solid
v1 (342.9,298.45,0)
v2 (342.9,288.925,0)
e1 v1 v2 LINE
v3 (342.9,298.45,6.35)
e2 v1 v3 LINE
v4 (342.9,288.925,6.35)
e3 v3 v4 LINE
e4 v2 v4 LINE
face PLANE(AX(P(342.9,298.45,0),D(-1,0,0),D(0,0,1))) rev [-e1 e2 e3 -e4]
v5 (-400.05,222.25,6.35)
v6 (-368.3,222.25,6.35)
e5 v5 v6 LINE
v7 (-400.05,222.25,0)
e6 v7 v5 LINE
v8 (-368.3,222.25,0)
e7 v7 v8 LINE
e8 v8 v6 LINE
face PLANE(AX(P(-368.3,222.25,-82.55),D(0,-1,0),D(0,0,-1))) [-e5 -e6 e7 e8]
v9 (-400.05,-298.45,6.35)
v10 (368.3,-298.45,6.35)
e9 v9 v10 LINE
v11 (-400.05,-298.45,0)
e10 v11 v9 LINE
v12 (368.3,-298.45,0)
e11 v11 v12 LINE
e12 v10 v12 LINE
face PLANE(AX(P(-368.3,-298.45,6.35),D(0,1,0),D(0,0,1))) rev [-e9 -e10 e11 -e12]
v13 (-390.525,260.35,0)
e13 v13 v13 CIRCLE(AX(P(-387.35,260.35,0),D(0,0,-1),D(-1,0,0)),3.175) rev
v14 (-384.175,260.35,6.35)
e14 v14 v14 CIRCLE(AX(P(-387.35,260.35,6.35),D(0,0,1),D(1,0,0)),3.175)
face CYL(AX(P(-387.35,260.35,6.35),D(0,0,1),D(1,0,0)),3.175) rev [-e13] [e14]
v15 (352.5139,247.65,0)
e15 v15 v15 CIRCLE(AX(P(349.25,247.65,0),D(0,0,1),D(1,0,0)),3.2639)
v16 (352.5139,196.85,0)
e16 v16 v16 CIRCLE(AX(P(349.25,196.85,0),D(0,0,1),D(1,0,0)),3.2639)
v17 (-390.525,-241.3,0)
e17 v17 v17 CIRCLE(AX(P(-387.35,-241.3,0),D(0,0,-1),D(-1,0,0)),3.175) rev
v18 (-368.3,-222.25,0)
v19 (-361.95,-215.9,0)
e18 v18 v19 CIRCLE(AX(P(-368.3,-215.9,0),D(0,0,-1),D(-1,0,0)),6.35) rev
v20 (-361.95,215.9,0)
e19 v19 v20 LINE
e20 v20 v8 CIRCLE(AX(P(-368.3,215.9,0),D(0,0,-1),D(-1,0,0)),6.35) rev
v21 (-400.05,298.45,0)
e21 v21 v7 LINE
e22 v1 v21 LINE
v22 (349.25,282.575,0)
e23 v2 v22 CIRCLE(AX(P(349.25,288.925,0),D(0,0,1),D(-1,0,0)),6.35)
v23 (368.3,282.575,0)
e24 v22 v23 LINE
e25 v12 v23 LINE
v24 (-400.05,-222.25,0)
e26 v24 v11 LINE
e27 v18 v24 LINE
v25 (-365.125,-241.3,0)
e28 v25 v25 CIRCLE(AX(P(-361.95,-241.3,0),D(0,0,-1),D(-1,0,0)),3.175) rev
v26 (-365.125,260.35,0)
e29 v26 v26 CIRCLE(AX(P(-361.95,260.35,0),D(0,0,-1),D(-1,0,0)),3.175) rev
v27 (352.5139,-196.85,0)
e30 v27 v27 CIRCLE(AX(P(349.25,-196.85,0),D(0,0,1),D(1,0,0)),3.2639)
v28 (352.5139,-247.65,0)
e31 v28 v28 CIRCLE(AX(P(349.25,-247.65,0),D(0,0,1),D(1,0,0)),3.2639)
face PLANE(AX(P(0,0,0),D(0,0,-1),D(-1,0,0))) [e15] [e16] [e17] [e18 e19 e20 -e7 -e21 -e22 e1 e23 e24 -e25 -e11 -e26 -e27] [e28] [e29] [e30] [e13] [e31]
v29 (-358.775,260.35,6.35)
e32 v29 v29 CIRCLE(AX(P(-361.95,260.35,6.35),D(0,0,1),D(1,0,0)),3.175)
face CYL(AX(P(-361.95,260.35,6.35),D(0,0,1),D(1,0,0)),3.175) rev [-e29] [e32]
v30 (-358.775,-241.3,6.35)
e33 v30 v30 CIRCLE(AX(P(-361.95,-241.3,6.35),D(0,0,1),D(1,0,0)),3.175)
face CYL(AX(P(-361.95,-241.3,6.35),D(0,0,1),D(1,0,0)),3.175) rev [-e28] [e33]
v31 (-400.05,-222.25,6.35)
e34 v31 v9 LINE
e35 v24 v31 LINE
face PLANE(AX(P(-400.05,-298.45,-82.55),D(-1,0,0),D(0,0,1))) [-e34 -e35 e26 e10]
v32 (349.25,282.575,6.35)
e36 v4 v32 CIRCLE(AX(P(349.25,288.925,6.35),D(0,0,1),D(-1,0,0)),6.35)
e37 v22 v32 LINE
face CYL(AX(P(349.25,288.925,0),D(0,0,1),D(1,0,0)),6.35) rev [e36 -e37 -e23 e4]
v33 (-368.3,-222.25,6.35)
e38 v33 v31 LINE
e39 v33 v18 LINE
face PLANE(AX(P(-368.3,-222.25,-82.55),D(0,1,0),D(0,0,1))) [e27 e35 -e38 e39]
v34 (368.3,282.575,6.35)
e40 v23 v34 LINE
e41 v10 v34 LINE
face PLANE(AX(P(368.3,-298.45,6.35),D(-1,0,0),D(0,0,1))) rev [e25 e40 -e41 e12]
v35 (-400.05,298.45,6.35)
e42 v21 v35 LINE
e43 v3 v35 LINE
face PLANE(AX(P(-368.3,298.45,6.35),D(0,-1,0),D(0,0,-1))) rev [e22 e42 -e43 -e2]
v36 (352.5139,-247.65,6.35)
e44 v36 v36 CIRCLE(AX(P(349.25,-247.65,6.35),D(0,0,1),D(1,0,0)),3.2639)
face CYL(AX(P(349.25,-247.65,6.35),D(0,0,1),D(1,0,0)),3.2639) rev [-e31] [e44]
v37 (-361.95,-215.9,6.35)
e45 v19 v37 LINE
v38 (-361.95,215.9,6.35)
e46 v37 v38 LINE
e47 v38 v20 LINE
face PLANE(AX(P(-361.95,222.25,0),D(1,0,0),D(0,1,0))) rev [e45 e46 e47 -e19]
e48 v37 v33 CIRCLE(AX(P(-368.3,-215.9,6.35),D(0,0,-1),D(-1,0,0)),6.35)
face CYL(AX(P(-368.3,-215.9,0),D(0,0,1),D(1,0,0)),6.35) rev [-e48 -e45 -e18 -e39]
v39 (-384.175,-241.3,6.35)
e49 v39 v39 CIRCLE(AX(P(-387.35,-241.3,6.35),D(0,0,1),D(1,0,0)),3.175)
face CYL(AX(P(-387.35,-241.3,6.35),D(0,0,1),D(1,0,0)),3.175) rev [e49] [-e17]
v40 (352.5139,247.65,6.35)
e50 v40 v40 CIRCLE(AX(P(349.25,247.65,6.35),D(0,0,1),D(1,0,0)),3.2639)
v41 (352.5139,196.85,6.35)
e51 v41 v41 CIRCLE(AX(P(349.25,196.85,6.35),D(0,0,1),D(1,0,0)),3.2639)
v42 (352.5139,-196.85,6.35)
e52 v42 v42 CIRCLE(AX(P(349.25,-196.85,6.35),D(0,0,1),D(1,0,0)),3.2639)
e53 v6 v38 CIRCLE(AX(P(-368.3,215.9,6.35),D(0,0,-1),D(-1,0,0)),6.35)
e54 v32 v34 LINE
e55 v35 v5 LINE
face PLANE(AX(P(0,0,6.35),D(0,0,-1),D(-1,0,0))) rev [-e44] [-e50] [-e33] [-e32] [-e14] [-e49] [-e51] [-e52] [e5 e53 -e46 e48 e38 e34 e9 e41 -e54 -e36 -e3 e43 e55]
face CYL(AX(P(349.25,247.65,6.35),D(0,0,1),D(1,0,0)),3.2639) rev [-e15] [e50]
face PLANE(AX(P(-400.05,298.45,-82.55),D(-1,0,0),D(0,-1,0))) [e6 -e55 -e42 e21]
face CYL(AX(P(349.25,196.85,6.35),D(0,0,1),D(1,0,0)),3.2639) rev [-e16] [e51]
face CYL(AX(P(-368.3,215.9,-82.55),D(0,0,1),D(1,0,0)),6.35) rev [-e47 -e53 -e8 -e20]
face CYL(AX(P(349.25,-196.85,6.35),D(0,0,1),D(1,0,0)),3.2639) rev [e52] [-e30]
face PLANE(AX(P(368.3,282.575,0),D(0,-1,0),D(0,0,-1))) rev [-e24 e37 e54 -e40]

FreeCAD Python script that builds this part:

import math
import FreeCAD as App
import Part
import Sketcher
Q = App.Units.Quantity


def edges_at(feature, points):
    """Names of the edges that pass closest to the given points."""
    edges = feature.Shape.Edges
    near = lambda p: min(range(len(edges)), key=lambda i: edges[i].distToShape(Part.Vertex(*p))[0])
    return sorted({f"Edge{near(p) + 1}" for p in points})

doc = App.newDocument("Part")
body = doc.addObject("PartDesign::Body", "Body")

# Sketch on XY plane
sketch1 = body.newObject("Sketcher::SketchObject", "Sketch")
sketch1.AttachmentSupport = (doc.getObject("XY_Plane"), [""])
sketch1.MapMode = "FlatFace"
sketch1.addGeometry(Part.LineSegment(App.Vector(-368, 298, 0), App.Vector(-368, -298, 0)), False)
sketch1.addGeometry(Part.LineSegment(App.Vector(-368, -298, 0), App.Vector(368, -298, 0)), False)
sketch1.addGeometry(Part.LineSegment(App.Vector(368, -298, 0), App.Vector(368, 298, 0)), False)
sketch1.addGeometry(Part.LineSegment(App.Vector(368, 298, 0), App.Vector(-368, 298, 0)), False)
sketch1.addConstraint(Sketcher.Constraint("Coincident", 0, 2, 1, 1))
sketch1.addConstraint(Sketcher.Constraint("Coincident", 1, 2, 2, 1))
sketch1.addConstraint(Sketcher.Constraint("Coincident", 2, 2, 3, 1))
sketch1.addConstraint(Sketcher.Constraint("Coincident", 3, 2, 0, 1))
sketch1.addConstraint(Sketcher.Constraint("Vertical", 0))
sketch1.addConstraint(Sketcher.Constraint("Horizontal", 1))
sketch1.addConstraint(Sketcher.Constraint("Vertical", 2))
sketch1.addConstraint(Sketcher.Constraint("Horizontal", 3))
sketch1.addConstraint(Sketcher.Constraint("Symmetric", 0, 2, 2, 2, -1, 1))
sketch1.addConstraint(Sketcher.Constraint("DistanceX", 1, 1, 1, 2, Q("29 in")))
sketch1.addConstraint(Sketcher.Constraint("DistanceY", 0, 2, 0, 1, Q("23.5 in")))
pad1 = body.newObject("PartDesign::Pad", "Pad")
pad1.Profile = sketch1
pad1.Length = Q("0.25 in")

# Sketch on XY plane
sketch2 = body.newObject("Sketcher::SketchObject", "Sketch001")
sketch2.AttachmentSupport = (doc.getObject("XY_Plane"), [""])
sketch2.MapMode = "FlatFace"
sketch2.AttachmentOffset = App.Placement(App.Vector(0, 0, 0.25 * 25.4), App.Rotation())
sketch2.addGeometry(Part.LineSegment(App.Vector(-400, 298, 0), App.Vector(-400, 222, 0)), False)
sketch2.addGeometry(Part.LineSegment(App.Vector(-400, 222, 0), App.Vector(-368, 222, 0)), False)
sketch2.addGeometry(Part.LineSegment(App.Vector(-368, 222, 0), App.Vector(-368, 298, 0)), False)
sketch2.addGeometry(Part.LineSegment(App.Vector(-368, 298, 0), App.Vector(-400, 298, 0)), False)
sketch2.addGeometry(Part.LineSegment(App.Vector(-400, -222, 0), App.Vector(-400, -298, 0)), False)
sketch2.addGeometry(Part.LineSegment(App.Vector(-400, -298, 0), App.Vector(-368, -298, 0)), False)
sketch2.addGeometry(Part.LineSegment(App.Vector(-368, -298, 0), App.Vector(-368, -222, 0)), False)
sketch2.addGeometry(Part.LineSegment(App.Vector(-368, -222, 0), App.Vector(-400, -222, 0)), False)
sketch2.addConstraint(Sketcher.Constraint("Coincident", 0, 2, 1, 1))
sketch2.addConstraint(Sketcher.Constraint("Coincident", 1, 2, 2, 1))
sketch2.addConstraint(Sketcher.Constraint("Coincident", 2, 2, 3, 1))
sketch2.addConstraint(Sketcher.Constraint("Coincident", 3, 2, 0, 1))
sketch2.addConstraint(Sketcher.Constraint("Coincident", 4, 2, 5, 1))
sketch2.addConstraint(Sketcher.Constraint("Coincident", 5, 2, 6, 1))
sketch2.addConstraint(Sketcher.Constraint("Coincident", 6, 2, 7, 1))
sketch2.addConstraint(Sketcher.Constraint("Coincident", 7, 2, 4, 1))
sketch2.addConstraint(Sketcher.Constraint("Vertical", 0))
sketch2.addConstraint(Sketcher.Constraint("Horizontal", 1))
sketch2.addConstraint(Sketcher.Constraint("Vertical", 2))
sketch2.addConstraint(Sketcher.Constraint("Horizontal", 3))
sketch2.addConstraint(Sketcher.Constraint("Vertical", 4))
sketch2.addConstraint(Sketcher.Constraint("Horizontal", 5))
sketch2.addConstraint(Sketcher.Constraint("Vertical", 6))
sketch2.addConstraint(Sketcher.Constraint("Horizontal", 7))
sketch2.addConstraint(Sketcher.Constraint("Symmetric", 3, 2, 4, 2, -1))
sketch2.addConstraint(Sketcher.Constraint("Symmetric", 1, 2, 6, 2, -1))
sketch2.addConstraint(Sketcher.Constraint("DistanceY", 0, 2, 0, 1, Q("3 in")))
sketch2.addConstraint(Sketcher.Constraint("DistanceX", 1, 1, 1, 2, Q("1.25 in")))
sketch2.addConstraint(Sketcher.Constraint("DistanceX", 1, 2, -1, 1, Q("14.5 in")))
sketch2.addConstraint(Sketcher.Constraint("DistanceY", 4, 2, 0, 2, Q("20.5 in")))
pad2 = body.newObject("PartDesign::Pad", "Pad001")
pad2.Profile = sketch2
pad2.Length = Q("0.25 in")
pad2.Reversed = True

# Sketch on XY plane
sketch3 = body.newObject("Sketcher::SketchObject", "Sketch002")
sketch3.AttachmentSupport = (doc.getObject("XY_Plane"), [""])
sketch3.MapMode = "FlatFace"
sketch3.AttachmentOffset = App.Placement(App.Vector(0, 0, 0.25 * 25.4), App.Rotation())
sketch3.addGeometry(Part.LineSegment(App.Vector(-368, 222, 0), App.Vector(-368, -222, 0)), False)
sketch3.addGeometry(Part.LineSegment(App.Vector(-368, -222, 0), App.Vector(-362, -222, 0)), False)
sketch3.addGeometry(Part.LineSegment(App.Vector(-362, -222, 0), App.Vector(-362, 222, 0)), False)
sketch3.addGeometry(Part.LineSegment(App.Vector(-362, 222, 0), App.Vector(-368, 222, 0)), False)
sketch3.addConstraint(Sketcher.Constraint("Coincident", 0, 2, 1, 1))
sketch3.addConstraint(Sketcher.Constraint("Coincident", 1, 2, 2, 1))
sketch3.addConstraint(Sketcher.Constraint("Coincident", 2, 2, 3, 1))
sketch3.addConstraint(Sketcher.Constraint("Coincident", 3, 2, 0, 1))
sketch3.addConstraint(Sketcher.Constraint("Vertical", 0))
sketch3.addConstraint(Sketcher.Constraint("Horizontal", 1))
sketch3.addConstraint(Sketcher.Constraint("Vertical", 2))
sketch3.addConstraint(Sketcher.Constraint("Horizontal", 3))
sketch3.addConstraint(Sketcher.Constraint("DistanceY", 0, 2, 0, 1, Q("17.5 in")))
sketch3.addConstraint(Sketcher.Constraint("DistanceX", 1, 1, 1, 2, Q("0.25 in")))
sketch3.addConstraint(Sketcher.Constraint("DistanceX", 0, 2, -1, 1, Q("14.5 in")))
sketch3.addConstraint(Sketcher.Constraint("DistanceY", 0, 2, -1, 1, Q("8.75 in")))
pocket1 = body.newObject("PartDesign::Pocket", "Pocket")
pocket1.Profile = sketch3
pocket1.Type = "ThroughAll"
doc.recompute()

fillet = body.newObject("PartDesign::Fillet", "Fillet")
fillet.Base = (pocket1, edges_at(pocket1, [(-361.95, -222.25, 3.175), (-361.95, 222.25, 3.175)]))
fillet.Radius = Q("0.25 in")

# Sketch on XY plane
sketch4 = body.newObject("Sketcher::SketchObject", "Sketch003")
sketch4.AttachmentSupport = (doc.getObject("XY_Plane"), [""])
sketch4.MapMode = "FlatFace"
sketch4.AttachmentOffset = App.Placement(App.Vector(0, 0, 0.25 * 25.4), App.Rotation())
sketch4.addGeometry(Part.Circle(App.Vector(349.2, 247.7, 0), App.Vector(0, 0, 1), 3.3), False)
sketch4.addGeometry(Part.Circle(App.Vector(349.2, 196.8, 0), App.Vector(0, 0, 1), 3.3), False)
sketch4.addGeometry(Part.Circle(App.Vector(349.2, -196.8, 0), App.Vector(0, 0, 1), 3.3), False)
sketch4.addGeometry(Part.Circle(App.Vector(349.2, -247.7, 0), App.Vector(0, 0, 1), 3.3), False)
sketch4.addConstraint(Sketcher.Constraint("Equal", 0, 1))
sketch4.addConstraint(Sketcher.Constraint("Equal", 1, 2))
sketch4.addConstraint(Sketcher.Constraint("Equal", 2, 3))
sketch4.addConstraint(Sketcher.Constraint("Symmetric", 1, 3, 2, 3, -1))
sketch4.addConstraint(Sketcher.Constraint("Symmetric", 0, 3, 3, 3, -1))
sketch4.addConstraint(Sketcher.Constraint("Vertical", 0, 3, 1, 3))
sketch4.addConstraint(Sketcher.Constraint("Diameter", 0, Q("0.257 in")))
sketch4.addConstraint(Sketcher.Constraint("DistanceY", 1, 3, 0, 3, Q("2 in")))
sketch4.addConstraint(Sketcher.Constraint("DistanceY", 2, 3, 1, 3, Q("15.5 in")))
sketch4.addConstraint(Sketcher.Constraint("DistanceX", -1, 1, 0, 3, Q("13.75 in")))
doc.recompute()
hole = body.newObject("PartDesign::Hole", "Hole")
hole.Profile = sketch4
hole.ThreadType = "None"
hole.Diameter = Q("0.257 in")
hole.DepthType = "ThroughAll"

# Sketch on XY plane
sketch5 = body.newObject("Sketcher::SketchObject", "Sketch004")
sketch5.AttachmentSupport = (doc.getObject("XY_Plane"), [""])
sketch5.MapMode = "FlatFace"
sketch5.AttachmentOffset = App.Placement(App.Vector(0, 0, 0.25 * 25.4), App.Rotation())
sketch5.addGeometry(Part.Circle(App.Vector(-387.4, 260.4, 0), App.Vector(0, 0, 1), 3.2), False)
sketch5.addGeometry(Part.Circle(App.Vector(-361.9, 260.4, 0), App.Vector(0, 0, 1), 3.2), False)
sketch5.addGeometry(Part.Circle(App.Vector(-361.9, -241.3, 0), App.Vector(0, 0, 1), 3.2), False)
sketch5.addGeometry(Part.Circle(App.Vector(-387.4, -241.3, 0), App.Vector(0, 0, 1), 3.2), False)
sketch5.addConstraint(Sketcher.Constraint("Equal", 0, 1))
sketch5.addConstraint(Sketcher.Constraint("Equal", 1, 2))
sketch5.addConstraint(Sketcher.Constraint("Equal", 2, 3))
sketch5.addConstraint(Sketcher.Constraint("Horizontal", 0, 3, 1, 3))
sketch5.addConstraint(Sketcher.Constraint("Horizontal", 2, 3, 3, 3))
sketch5.addConstraint(Sketcher.Constraint("Vertical", 1, 3, 2, 3))
sketch5.addConstraint(Sketcher.Constraint("Vertical", 0, 3, 3, 3))
sketch5.addConstraint(Sketcher.Constraint("Diameter", 0, Q("0.25 in")))
sketch5.addConstraint(Sketcher.Constraint("DistanceX", 0, 3, 1, 3, Q("1 in")))
sketch5.addConstraint(Sketcher.Constraint("DistanceY", 2, 3, -1, 1, Q("9.5 in")))
sketch5.addConstraint(Sketcher.Constraint("DistanceX", 0, 3, -1, 1, Q("15.25 in")))
sketch5.addConstraint(Sketcher.Constraint("DistanceY", -1, 1, 0, 3, Q("10.25 in")))
doc.recompute()
hole2 = body.newObject("PartDesign::Hole", "Hole001")
hole2.Profile = sketch5
hole2.ThreadType = "None"
hole2.Diameter = Q("0.25 in")
hole2.DepthType = "ThroughAll"

# Sketch on XY plane
sketch6 = body.newObject("Sketcher::SketchObject", "Sketch005")
sketch6.AttachmentSupport = (doc.getObject("XY_Plane"), [""])
sketch6.MapMode = "FlatFace"
sketch6.AttachmentOffset = App.Placement(App.Vector(0, 0, 0.25 * 25.4), App.Rotation())
sketch6.addGeometry(Part.LineSegment(App.Vector(368, 298, 0), App.Vector(343, 298, 0)), False)
sketch6.addGeometry(Part.LineSegment(App.Vector(343, 298, 0), App.Vector(343, 289, 0)), False)
sketch6.addGeometry(Part.ArcOfCircle(Part.Circle(App.Vector(349, 289, 0), App.Vector(0, 0, 1), 6), math.radians(180), math.radians(270)), False)
sketch6.addGeometry(Part.LineSegment(App.Vector(349, 283, 0), App.Vector(368, 283, 0)), False)
sketch6.addGeometry(Part.LineSegment(App.Vector(368, 283, 0), App.Vector(368, 298, 0)), False)
sketch6.addConstraint(Sketcher.Constraint("Coincident", 0, 2, 1, 1))
sketch6.addConstraint(Sketcher.Constraint("Tangent", 1, 2, 2, 1))
sketch6.addConstraint(Sketcher.Constraint("Tangent", 2, 2, 3, 1))
sketch6.addConstraint(Sketcher.Constraint("Coincident", 3, 2, 4, 1))
sketch6.addConstraint(Sketcher.Constraint("Coincident", 4, 2, 0, 1))
sketch6.addConstraint(Sketcher.Constraint("Horizontal", 0))
sketch6.addConstraint(Sketcher.Constraint("Vertical", 1))
sketch6.addConstraint(Sketcher.Constraint("Horizontal", 3))
sketch6.addConstraint(Sketcher.Constraint("Vertical", 4))
sketch6.addConstraint(Sketcher.Constraint("DistanceX", 0, 2, 0, 1, Q("1 in")))
sketch6.addConstraint(Sketcher.Constraint("Radius", 2, Q("0.25 in")))
sketch6.addConstraint(Sketcher.Constraint("DistanceX", -1, 1, 0, 2, Q("13.5 in")))
sketch6.addConstraint(Sketcher.Constraint("DistanceY", 1, 2, 1, 1, Q("0.375 in")))
sketch6.addConstraint(Sketcher.Constraint("DistanceY", -1, 1, 0, 2, Q("11.75 in")))
pocket2 = body.newObject("PartDesign::Pocket", "Pocket001")
pocket2.Profile = sketch6
pocket2.Type = "ThroughAll"

doc.recompute()
